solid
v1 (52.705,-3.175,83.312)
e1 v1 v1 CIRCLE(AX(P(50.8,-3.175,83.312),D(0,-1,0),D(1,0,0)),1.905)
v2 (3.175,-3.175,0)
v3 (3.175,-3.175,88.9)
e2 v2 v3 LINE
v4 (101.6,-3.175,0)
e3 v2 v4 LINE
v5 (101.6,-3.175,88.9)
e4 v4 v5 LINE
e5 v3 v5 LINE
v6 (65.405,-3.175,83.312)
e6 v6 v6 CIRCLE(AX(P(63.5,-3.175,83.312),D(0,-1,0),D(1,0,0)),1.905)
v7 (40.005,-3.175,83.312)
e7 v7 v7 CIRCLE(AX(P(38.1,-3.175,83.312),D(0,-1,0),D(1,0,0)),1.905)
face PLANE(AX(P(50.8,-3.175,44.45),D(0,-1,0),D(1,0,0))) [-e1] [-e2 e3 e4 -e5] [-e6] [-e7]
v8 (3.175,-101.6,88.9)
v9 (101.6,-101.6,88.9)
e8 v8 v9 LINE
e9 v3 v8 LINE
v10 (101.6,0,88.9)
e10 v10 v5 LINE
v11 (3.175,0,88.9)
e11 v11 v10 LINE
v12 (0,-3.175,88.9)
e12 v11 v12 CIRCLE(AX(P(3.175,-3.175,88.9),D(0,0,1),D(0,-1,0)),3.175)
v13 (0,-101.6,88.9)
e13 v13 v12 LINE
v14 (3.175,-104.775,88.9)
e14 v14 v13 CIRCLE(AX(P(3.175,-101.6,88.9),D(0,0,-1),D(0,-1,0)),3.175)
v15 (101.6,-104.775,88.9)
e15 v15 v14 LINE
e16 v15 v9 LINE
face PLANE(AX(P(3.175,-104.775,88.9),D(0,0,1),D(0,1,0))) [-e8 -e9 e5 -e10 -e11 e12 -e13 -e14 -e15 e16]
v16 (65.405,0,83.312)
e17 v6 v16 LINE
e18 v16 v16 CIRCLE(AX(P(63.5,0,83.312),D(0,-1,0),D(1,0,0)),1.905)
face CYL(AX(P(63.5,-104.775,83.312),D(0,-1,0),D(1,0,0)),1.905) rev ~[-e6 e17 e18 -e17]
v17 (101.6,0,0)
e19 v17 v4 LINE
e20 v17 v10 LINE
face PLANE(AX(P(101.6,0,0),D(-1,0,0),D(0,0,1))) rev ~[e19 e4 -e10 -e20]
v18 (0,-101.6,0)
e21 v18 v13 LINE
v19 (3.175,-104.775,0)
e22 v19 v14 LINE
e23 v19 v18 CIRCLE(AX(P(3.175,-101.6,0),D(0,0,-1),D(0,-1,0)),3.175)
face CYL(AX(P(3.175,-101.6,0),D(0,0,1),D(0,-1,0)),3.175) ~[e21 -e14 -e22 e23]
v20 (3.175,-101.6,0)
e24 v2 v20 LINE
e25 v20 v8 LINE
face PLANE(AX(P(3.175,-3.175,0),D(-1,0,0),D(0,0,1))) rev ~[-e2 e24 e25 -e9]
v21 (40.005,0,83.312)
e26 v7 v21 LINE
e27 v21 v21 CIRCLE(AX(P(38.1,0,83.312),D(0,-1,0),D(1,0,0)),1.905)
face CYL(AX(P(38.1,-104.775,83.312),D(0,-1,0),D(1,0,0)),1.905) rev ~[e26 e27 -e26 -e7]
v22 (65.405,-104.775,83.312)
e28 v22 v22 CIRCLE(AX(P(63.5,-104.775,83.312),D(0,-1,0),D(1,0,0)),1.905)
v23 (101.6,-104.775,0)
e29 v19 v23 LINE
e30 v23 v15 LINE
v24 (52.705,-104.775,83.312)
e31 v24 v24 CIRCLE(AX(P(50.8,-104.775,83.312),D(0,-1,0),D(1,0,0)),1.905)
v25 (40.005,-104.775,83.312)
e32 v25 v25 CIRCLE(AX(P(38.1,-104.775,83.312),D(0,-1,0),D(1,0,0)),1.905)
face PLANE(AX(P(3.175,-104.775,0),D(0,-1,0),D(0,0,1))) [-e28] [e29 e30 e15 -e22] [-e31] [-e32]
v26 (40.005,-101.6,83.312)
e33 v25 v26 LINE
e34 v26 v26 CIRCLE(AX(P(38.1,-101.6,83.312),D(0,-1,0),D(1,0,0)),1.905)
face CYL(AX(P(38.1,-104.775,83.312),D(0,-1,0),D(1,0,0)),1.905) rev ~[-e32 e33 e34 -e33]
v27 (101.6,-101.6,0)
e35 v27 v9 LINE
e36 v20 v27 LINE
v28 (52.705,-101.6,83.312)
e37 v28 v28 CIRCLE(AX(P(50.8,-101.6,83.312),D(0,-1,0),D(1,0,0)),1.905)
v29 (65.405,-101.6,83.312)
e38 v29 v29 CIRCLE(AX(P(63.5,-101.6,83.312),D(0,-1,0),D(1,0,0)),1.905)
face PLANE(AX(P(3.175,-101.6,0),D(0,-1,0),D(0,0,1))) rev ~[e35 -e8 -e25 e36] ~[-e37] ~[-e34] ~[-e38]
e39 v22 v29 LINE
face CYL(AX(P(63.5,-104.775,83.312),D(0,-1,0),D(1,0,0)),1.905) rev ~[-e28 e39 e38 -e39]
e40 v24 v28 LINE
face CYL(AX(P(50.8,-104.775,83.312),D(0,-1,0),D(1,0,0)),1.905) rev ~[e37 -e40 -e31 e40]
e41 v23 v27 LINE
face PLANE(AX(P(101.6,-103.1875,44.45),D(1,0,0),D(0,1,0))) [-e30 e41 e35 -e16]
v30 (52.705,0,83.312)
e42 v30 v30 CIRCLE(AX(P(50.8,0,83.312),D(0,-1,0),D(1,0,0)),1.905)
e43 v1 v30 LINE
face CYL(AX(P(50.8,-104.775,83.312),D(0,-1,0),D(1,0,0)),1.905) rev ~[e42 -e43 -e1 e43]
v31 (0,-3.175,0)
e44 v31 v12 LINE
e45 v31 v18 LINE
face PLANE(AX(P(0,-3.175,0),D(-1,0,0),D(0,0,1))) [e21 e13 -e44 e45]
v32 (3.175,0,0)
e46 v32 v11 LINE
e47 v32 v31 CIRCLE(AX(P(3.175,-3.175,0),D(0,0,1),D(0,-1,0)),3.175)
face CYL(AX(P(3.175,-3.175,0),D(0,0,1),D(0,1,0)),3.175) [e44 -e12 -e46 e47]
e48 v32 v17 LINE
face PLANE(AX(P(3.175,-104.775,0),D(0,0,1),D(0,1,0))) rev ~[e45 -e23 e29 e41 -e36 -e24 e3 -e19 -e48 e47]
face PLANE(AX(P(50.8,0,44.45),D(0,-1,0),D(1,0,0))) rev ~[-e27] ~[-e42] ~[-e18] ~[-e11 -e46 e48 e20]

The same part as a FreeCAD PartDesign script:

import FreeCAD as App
import Part
import Sketcher
Q = App.Units.Quantity


def edges_at(feature, points):
    """Names of the edges that pass closest to the given points."""
    edges = feature.Shape.Edges
    near = lambda p: min(range(len(edges)), key=lambda i: edges[i].distToShape(Part.Vertex(*p))[0])
    return sorted({f"Edge{near(p) + 1}" for p in points})


def add_polygon(sketch, points):
    """Adds a closed chain of lines whose ends are joined by coincident constraints."""
    first, n = sketch.GeometryCount, len(points)
    for a, b in zip(points, points[1:] + points[:1]):
        sketch.addGeometry(Part.LineSegment(App.Vector(*a, 0), App.Vector(*b, 0)), False)
    for i in range(n):
        sketch.addConstraint(Sketcher.Constraint("Coincident", first + i, 2, first + (i + 1) % n, 1))

doc = App.newDocument("Part")
params = doc.addObject("Spreadsheet::Sheet", "Params")
for row, (alias, value) in enumerate([
    ("sketch1_width", "4 in"),
    ("sketch1_height", "3.5 in"),
    ("pad1_length", "0.125 in"),
    ("sketch2_height", "3.5 in"),
    ("sketch2_width", "0.125 in"),
    ("pad2_length", "4 in"),
    ("sketch3_height", "3.5 in"),
    ("sketch3_width", "0.125 in"),
    ("pad3_length", "3.875 in"),
    ("fillet_radius", "0.125 in"),
    ("sketch4_diameter", "0.15 in"),
], start=1):
    params.set(f"A{row}", alias)
    params.set(f"B{row}", "=" + value)
    params.setAlias(f"B{row}", alias)

body = doc.addObject("PartDesign::Body", "Body")

# Sketch on XZ plane
sketch1 = body.newObject("Sketcher::SketchObject", "Sketch")
sketch1.AttachmentSupport = (doc.getObject("XZ_Plane"), [""])
sketch1.MapMode = "FlatFace"
add_polygon(sketch1, [(0, 89), (0, 0), (102, 0), (102, 89)])  # lines 0-3
sketch1.addConstraint([
    Sketcher.Constraint("Vertical", 0),
    Sketcher.Constraint("Horizontal", 1),
    Sketcher.Constraint("Vertical", 2),
    Sketcher.Constraint("Horizontal", 3),
    Sketcher.Constraint("Coincident", 0, 2, -1, 1),
    Sketcher.Constraint("DistanceX", 1, 1, 1, 2, Q("4 in")),
    Sketcher.Constraint("DistanceY", 0, 2, 0, 1, Q("3.5 in")),
])
sketch1.setExpression("Constraints[9]", "Params.sketch1_width")
sketch1.setExpression("Constraints[10]", "Params.sketch1_height")
pad1 = body.newObject("PartDesign::Pad", "Pad")
pad1.Profile = sketch1
pad1.setExpression("Length", "Params.pad1_length")

# Sketch on XZ plane
sketch2 = body.newObject("Sketcher::SketchObject", "Sketch001")
sketch2.AttachmentSupport = (doc.getObject("XZ_Plane"), [""])
sketch2.MapMode = "FlatFace"
sketch2.AttachmentOffset = App.Placement(App.Vector(0, 0, 0.125 * 25.4), App.Rotation())
add_polygon(sketch2, [(0, 88.9), (0, 0), (3.2, 0), (3.2, 88.9)])  # lines 0-3
sketch2.addConstraint([
    Sketcher.Constraint("Vertical", 0),
    Sketcher.Constraint("Horizontal", 1),
    Sketcher.Constraint("Vertical", 2),
    Sketcher.Constraint("Horizontal", 3),
    Sketcher.Constraint("Coincident", 0, 2, -1, 1),
    Sketcher.Constraint("DistanceY", 0, 2, 0, 1, Q("3.5 in")),
    Sketcher.Constraint("DistanceX", 1, 1, 1, 2, Q("0.125 in")),
])
sketch2.setExpression("Constraints[9]", "Params.sketch2_height")
sketch2.setExpression("Constraints[10]", "Params.sketch2_width")
pad2 = body.newObject("PartDesign::Pad", "Pad001")
pad2.Profile = sketch2
pad2.setExpression("Length", "Params.pad2_length")

# Sketch on YZ plane
sketch3 = body.newObject("Sketcher::SketchObject", "Sketch002")
sketch3.AttachmentSupport = (doc.getObject("YZ_Plane"), [""])
sketch3.MapMode = "FlatFace"
sketch3.AttachmentOffset = App.Placement(App.Vector(0, 0, 0.125 * 25.4), App.Rotation())
add_polygon(sketch3, [(-104.8, 88.9), (-104.8, 0), (-101.6, 0), (-101.6, 88.9)])  # lines 0-3
sketch3.addConstraint([
    Sketcher.Constraint("Vertical", 0),
    Sketcher.Constraint("Horizontal", 1),
    Sketcher.Constraint("Vertical", 2),
    Sketcher.Constraint("Horizontal", 3),
    Sketcher.Constraint("PointOnObject", 0, 2, -1),
    Sketcher.Constraint("DistanceY", 0, 2, 0, 1, Q("3.5 in")),
    Sketcher.Constraint("DistanceX", 1, 2, -1, 1, Q("4 in")),
    Sketcher.Constraint("DistanceX", 1, 1, 1, 2, Q("0.125 in")),
])
sketch3.setExpression("Constraints[9]", "Params.sketch3_height")
sketch3.setExpression("Constraints[11]", "Params.sketch3_width")
pad3 = body.newObject("PartDesign::Pad", "Pad002")
pad3.Profile = sketch3
pad3.setExpression("Length", "Params.pad3_length")
doc.recompute()

fillet = body.newObject("PartDesign::Fillet", "Fillet")
fillet.Base = (pad3, edges_at(pad3, [(0, 0, 44.45), (0, -104.775, 44.45)]))
fillet.setExpression("Radius", "Params.fillet_radius")

# Sketch on XZ plane
sketch4 = body.newObject("Sketcher::SketchObject", "Sketch003")
sketch4.AttachmentSupport = (doc.getObject("XZ_Plane"), [""])
sketch4.MapMode = "FlatFace"
sketch4.AttachmentOffset = App.Placement(App.Vector(0, 0, 4.125 * 25.4), App.Rotation())
sketch4.addGeometry([
    Part.Circle(App.Vector(38.1, 83.3, 0), App.Vector(0, 0, 1), 1.9),
    Part.Circle(App.Vector(50.8, 83.3, 0), App.Vector(0, 0, 1), 1.9),
    Part.Circle(App.Vector(63.5, 83.3, 0), App.Vector(0, 0, 1), 1.9),
], False)
sketch4.addConstraint([
    Sketcher.Constraint("Equal", 0, 1),
    Sketcher.Constraint("Equal", 1, 2),
    Sketcher.Constraint("Horizontal", 0, 3, 1, 3),
    Sketcher.Constraint("Horizontal", 1, 3, 2, 3),
    Sketcher.Constraint("Diameter", 0, Q("0.15 in")),
    Sketcher.Constraint("DistanceX", -1, 1, 1, 3, Q("2 in")),
    Sketcher.Constraint("DistanceX", 0, 3, 2, 3, Q("1 in")),
    Sketcher.Constraint("DistanceX", -1, 1, 0, 3, Q("1.5 in")),
    Sketcher.Constraint("DistanceY", -1, 1, 0, 3, Q("3.28 in")),
])
sketch4.setExpression("Constraints[4]", "Params.sketch4_diameter")
pocket1 = body.newObject("PartDesign::Pocket", "Pocket")
pocket1.Profile = sketch4
pocket1.Type = "ThroughAll"

doc.recompute()
